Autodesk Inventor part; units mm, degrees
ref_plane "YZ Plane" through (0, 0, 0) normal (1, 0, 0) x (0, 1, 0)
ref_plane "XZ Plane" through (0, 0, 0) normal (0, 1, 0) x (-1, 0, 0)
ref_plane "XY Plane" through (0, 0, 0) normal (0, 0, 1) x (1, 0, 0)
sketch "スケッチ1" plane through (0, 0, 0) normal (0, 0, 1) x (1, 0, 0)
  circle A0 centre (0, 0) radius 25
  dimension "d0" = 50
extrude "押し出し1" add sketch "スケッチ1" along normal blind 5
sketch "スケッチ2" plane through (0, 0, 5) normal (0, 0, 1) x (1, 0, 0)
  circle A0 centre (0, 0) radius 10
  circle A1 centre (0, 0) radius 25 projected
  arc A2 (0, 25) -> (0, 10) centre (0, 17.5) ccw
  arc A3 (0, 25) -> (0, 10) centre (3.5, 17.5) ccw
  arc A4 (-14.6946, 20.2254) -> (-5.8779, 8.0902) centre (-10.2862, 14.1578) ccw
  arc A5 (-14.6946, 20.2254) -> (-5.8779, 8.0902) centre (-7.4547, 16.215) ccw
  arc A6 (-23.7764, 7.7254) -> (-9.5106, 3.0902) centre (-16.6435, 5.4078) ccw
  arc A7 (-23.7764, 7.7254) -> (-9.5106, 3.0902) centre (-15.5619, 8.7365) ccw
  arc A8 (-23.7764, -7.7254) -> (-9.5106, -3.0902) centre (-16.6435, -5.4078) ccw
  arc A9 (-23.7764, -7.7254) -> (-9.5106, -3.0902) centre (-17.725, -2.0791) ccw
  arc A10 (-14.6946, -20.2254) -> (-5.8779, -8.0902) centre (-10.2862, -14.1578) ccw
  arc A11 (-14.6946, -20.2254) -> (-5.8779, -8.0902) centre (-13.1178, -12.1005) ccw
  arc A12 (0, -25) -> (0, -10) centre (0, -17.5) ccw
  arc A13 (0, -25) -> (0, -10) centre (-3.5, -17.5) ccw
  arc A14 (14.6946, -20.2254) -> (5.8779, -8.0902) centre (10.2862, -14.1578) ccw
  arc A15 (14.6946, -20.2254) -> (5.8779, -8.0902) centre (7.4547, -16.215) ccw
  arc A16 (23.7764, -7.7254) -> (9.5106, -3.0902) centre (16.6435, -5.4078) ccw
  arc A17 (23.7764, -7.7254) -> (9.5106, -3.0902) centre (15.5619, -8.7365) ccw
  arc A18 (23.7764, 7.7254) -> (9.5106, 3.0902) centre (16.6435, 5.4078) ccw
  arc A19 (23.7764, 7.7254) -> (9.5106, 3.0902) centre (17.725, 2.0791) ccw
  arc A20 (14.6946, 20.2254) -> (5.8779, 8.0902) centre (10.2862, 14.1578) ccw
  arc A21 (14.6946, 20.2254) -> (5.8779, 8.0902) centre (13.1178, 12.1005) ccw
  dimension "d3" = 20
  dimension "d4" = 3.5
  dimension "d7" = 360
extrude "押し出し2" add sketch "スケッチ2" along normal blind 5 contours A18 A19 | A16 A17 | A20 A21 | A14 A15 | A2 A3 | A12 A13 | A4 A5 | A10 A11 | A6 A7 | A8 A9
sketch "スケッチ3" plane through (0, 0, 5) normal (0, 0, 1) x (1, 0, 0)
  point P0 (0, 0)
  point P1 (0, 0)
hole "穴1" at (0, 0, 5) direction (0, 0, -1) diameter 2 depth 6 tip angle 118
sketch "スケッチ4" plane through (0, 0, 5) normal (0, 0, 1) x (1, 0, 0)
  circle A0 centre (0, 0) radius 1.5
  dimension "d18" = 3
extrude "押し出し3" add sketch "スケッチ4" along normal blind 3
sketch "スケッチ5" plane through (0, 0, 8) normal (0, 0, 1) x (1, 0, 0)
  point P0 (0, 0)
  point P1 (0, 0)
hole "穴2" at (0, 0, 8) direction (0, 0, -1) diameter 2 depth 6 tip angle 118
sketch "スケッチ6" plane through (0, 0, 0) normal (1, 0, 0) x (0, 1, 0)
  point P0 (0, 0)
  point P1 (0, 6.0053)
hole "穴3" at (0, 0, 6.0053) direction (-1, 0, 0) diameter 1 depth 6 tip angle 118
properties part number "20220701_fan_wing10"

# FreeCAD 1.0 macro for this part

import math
import FreeCAD as App
import Part
import Sketcher
from FreeCAD import Vector
Q = App.Units.Quantity

doc = App.newDocument("Part")
body = doc.addObject("PartDesign::Body", "Body")

# Sketch on XY plane
sketch1 = body.newObject("Sketcher::SketchObject", "Sketch")
sketch1.AttachmentSupport = (doc.getObject("XY_Plane"), [""])
sketch1.MapMode = "FlatFace"
sketch1.addGeometry(Part.Circle(Vector(0, 0, 0), Vector(0, 0, 1), 25), False)
sketch1.addConstraint([
    Sketcher.Constraint("Coincident", 0, 3, -1, 1),
    Sketcher.Constraint("Diameter", 0, Q("50 mm")),
])
pad1 = body.newObject("PartDesign::Pad", "Pad")
pad1.Profile = sketch1
pad1.Length = 5

# Sketch on XY plane
sketch2 = body.newObject("Sketcher::SketchObject", "Sketch001")
sketch2.AttachmentSupport = (doc.getObject("XY_Plane"), [""])
sketch2.MapMode = "FlatFace"
sketch2.AttachmentOffset = App.Placement(Vector(0, 0, 5), App.Rotation())
sketch2.addGeometry([
    Part.ArcOfCircle(Part.Circle(Vector(17, 5, 0), Vector(0, 0, 1), 7), math.radians(18), math.radians(198)),  # 0
    Part.ArcOfCircle(Part.Circle(Vector(18, 2, 0), Vector(0, 0, 1), 8), math.radians(43), math.radians(173)),  # 1
    Part.ArcOfCircle(Part.Circle(Vector(17, -5, 0), Vector(0, 0, 1), 7), math.radians(-18), math.radians(162)),  # 2
    Part.ArcOfCircle(Part.Circle(Vector(16, -9, 0), Vector(0, 0, 1), 8), math.radians(7), math.radians(137)),  # 3
    Part.ArcOfCircle(Part.Circle(Vector(10, 14, 0), Vector(0, 0, 1), 7), math.radians(54), math.radians(234)),  # 4
    Part.ArcOfCircle(Part.Circle(Vector(13, 12, 0), Vector(0, 0, 1), 8), math.radians(79), math.radians(209)),  # 5
    Part.ArcOfCircle(Part.Circle(Vector(10, -14, 0), Vector(0, 0, 1), 7), math.radians(-54), math.radians(126)),  # 6
    Part.ArcOfCircle(Part.Circle(Vector(7, -16, 0), Vector(0, 0, 1), 8), math.radians(-29), math.radians(101)),  # 7
    Part.ArcOfCircle(Part.Circle(Vector(0, 18, 0), Vector(0, 0, 1), 8), math.radians(90), math.radians(270)),  # 8
    Part.ArcOfCircle(Part.Circle(Vector(4, 18, 0), Vector(0, 0, 1), 8), math.radians(115), math.radians(245)),  # 9
    Part.ArcOfCircle(Part.Circle(Vector(0, -18, 0), Vector(0, 0, 1), 8), math.radians(-90), math.radians(90)),  # 10
    Part.ArcOfCircle(Part.Circle(Vector(-4, -18, 0), Vector(0, 0, 1), 8), math.radians(-65), math.radians(65)),  # 11
    Part.ArcOfCircle(Part.Circle(Vector(-10, 14, 0), Vector(0, 0, 1), 7), math.radians(126), math.radians(306)),  # 12
    Part.ArcOfCircle(Part.Circle(Vector(-7, 16, 0), Vector(0, 0, 1), 8), math.radians(151), math.radians(281)),  # 13
    Part.ArcOfCircle(Part.Circle(Vector(-10, -14, 0), Vector(0, 0, 1), 7), math.radians(-126), math.radians(54)),  # 14
    Part.ArcOfCircle(Part.Circle(Vector(-13, -12, 0), Vector(0, 0, 1), 8), math.radians(-101), math.radians(29)),  # 15
    Part.ArcOfCircle(Part.Circle(Vector(-17, 5, 0), Vector(0, 0, 1), 7), math.radians(162), math.radians(342)),  # 16
    Part.ArcOfCircle(Part.Circle(Vector(-16, 9, 0), Vector(0, 0, 1), 8), math.radians(-173), math.radians(-43)),  # 17
    Part.ArcOfCircle(Part.Circle(Vector(-17, -5, 0), Vector(0, 0, 1), 7), math.radians(-162), math.radians(18)),  # 18
    Part.ArcOfCircle(Part.Circle(Vector(-18, -2, 0), Vector(0, 0, 1), 8), math.radians(-137), math.radians(-7)),  # 19
], False)
sketch2.addConstraint([
    Sketcher.Constraint("Coincident", 0, 1, 1, 1),
    Sketcher.Constraint("Coincident", 1, 2, 0, 2),
    Sketcher.Constraint("Coincident", 2, 1, 3, 1),
    Sketcher.Constraint("Coincident", 3, 2, 2, 2),
    Sketcher.Constraint("Coincident", 4, 1, 5, 1),
    Sketcher.Constraint("Coincident", 5, 2, 4, 2),
    Sketcher.Constraint("Coincident", 6, 1, 7, 1),
    Sketcher.Constraint("Coincident", 7, 2, 6, 2),
    Sketcher.Constraint("Coincident", 8, 1, 9, 1),
    Sketcher.Constraint("Coincident", 9, 2, 8, 2),
    Sketcher.Constraint("Coincident", 10, 1, 11, 1),
    Sketcher.Constraint("Coincident", 11, 2, 10, 2),
    Sketcher.Constraint("Coincident", 12, 1, 13, 1),
    Sketcher.Constraint("Coincident", 13, 2, 12, 2),
    Sketcher.Constraint("Coincident", 14, 1, 15, 1),
    Sketcher.Constraint("Coincident", 15, 2, 14, 2),
    Sketcher.Constraint("Coincident", 16, 1, 17, 1),
    Sketcher.Constraint("Coincident", 17, 2, 16, 2),
    Sketcher.Constraint("Coincident", 18, 1, 19, 1),
    Sketcher.Constraint("Coincident", 19, 2, 18, 2),
    Sketcher.Constraint("Equal", 0, 2),
    Sketcher.Constraint("Equal", 1, 3),
    Sketcher.Constraint("Equal", 2, 4),
    Sketcher.Constraint("Equal", 3, 5),
    Sketcher.Constraint("Equal", 4, 6),
    Sketcher.Constraint("Equal", 5, 7),
    Sketcher.Constraint("Equal", 6, 8),
    Sketcher.Constraint("Equal", 7, 9),
    Sketcher.Constraint("Equal", 8, 10),
    Sketcher.Constraint("Equal", 9, 11),
    Sketcher.Constraint("Equal", 10, 12),
    Sketcher.Constraint("Equal", 11, 13),
    Sketcher.Constraint("Equal", 12, 14),
    Sketcher.Constraint("Equal", 13, 15),
    Sketcher.Constraint("Equal", 14, 16),
    Sketcher.Constraint("Equal", 15, 17),
    Sketcher.Constraint("Equal", 16, 18),
    Sketcher.Constraint("Equal", 17, 19),
    Sketcher.Constraint("Symmetric", 8, 3, 10, 3, -1, 1),
    Sketcher.Constraint("Symmetric", 9, 3, 11, 3, -1, 1),
    Sketcher.Constraint("Symmetric", 6, 3, 12, 3, -1, 1),
    Sketcher.Constraint("Symmetric", 7, 3, 13, 3, -1, 1),
    Sketcher.Constraint("Symmetric", 4, 3, 14, 3, -1, 1),
    Sketcher.Constraint("Symmetric", 5, 3, 15, 3, -1, 1),
    Sketcher.Constraint("Symmetric", 2, 3, 16, 3, -1, 1),
    Sketcher.Constraint("Symmetric", 3, 3, 17, 3, -1, 1),
    Sketcher.Constraint("Symmetric", 0, 3, 18, 3, -1, 1),
    Sketcher.Constraint("Symmetric", 1, 3, 19, 3, -1, 1),
    Sketcher.Constraint("Symmetric", 4, 3, 12, 3, -2),
    Sketcher.Constraint("Symmetric", 0, 3, 16, 3, -2),
    Sketcher.Constraint("PointOnObject", 8, 3, -2),
    Sketcher.Constraint("PointOnObject", 8, 1, -2),
    Sketcher.Constraint("PointOnObject", 9, 2, -2),
    Sketcher.Constraint("Horizontal", 4, 1, 12, 1),
    Sketcher.Constraint("Horizontal", 5, 2, 13, 2),
    Sketcher.Constraint("Horizontal", 0, 1, 16, 1),
    Sketcher.Constraint("Horizontal", 1, 2, 17, 2),
    Sketcher.Constraint("DistanceX", -1, 1, 9, 3, Q("3.5 mm")),
    Sketcher.Constraint("Radius", 0, Q("7.5 mm")),
    Sketcher.Constraint("DistanceY", -1, 1, 8, 1, Q("25 mm")),
    Sketcher.Constraint("DistanceY", 1, 2, 5, 2, Q("5 mm")),
    Sketcher.Constraint("DistanceY", 0, 3, 4, 3, Q("8.75 mm")),
    Sketcher.Constraint("DistanceX", 5, 2, 5, 3, Q("7.24 mm")),
    Sketcher.Constraint("DistanceX", -1, 1, 1, 3, Q("17.725 mm")),
    Sketcher.Constraint("DistanceY", -1, 1, 1, 3, Q("2.079 mm")),
    Sketcher.Constraint("DistanceX", -1, 1, 3, 3, Q("15.562 mm")),
    Sketcher.Constraint("DistanceX", -1, 1, 7, 2, Q("5.878 mm")),
    Sketcher.Constraint("DistanceY", 2, 3, 1, 3, Q("7.487 mm")),
])
pad2 = body.newObject("PartDesign::Pad", "Pad001")
pad2.Profile = sketch2
pad2.Length = 5

# Sketch on XY plane
sketch3 = body.newObject("Sketcher::SketchObject", "Sketch002")
sketch3.AttachmentSupport = (doc.getObject("XY_Plane"), [""])
sketch3.MapMode = "FlatFace"
sketch3.AttachmentOffset = App.Placement(Vector(0, 0, 5), App.Rotation())
sketch3.addGeometry(Part.Circle(Vector(0, 0, 0), Vector(0, 0, 1), 1), False)
sketch3.addConstraint([
    Sketcher.Constraint("Coincident", 0, 3, -1, 1),
    Sketcher.Constraint("Diameter", 0, Q("2 mm")),
])
doc.recompute()
hole = body.newObject("PartDesign::Hole", "Hole")
hole.Profile = sketch3
hole.ThreadType = "None"
hole.Diameter = 2
hole.DepthType = "Dimension"
hole.Depth = 6
hole.DrillPoint = "Angled"
hole.DrillPointAngle = 118

# Sketch on XY plane
sketch4 = body.newObject("Sketcher::SketchObject", "Sketch003")
sketch4.AttachmentSupport = (doc.getObject("XY_Plane"), [""])
sketch4.MapMode = "FlatFace"
sketch4.AttachmentOffset = App.Placement(Vector(0, 0, 5), App.Rotation())
sketch4.addGeometry(Part.Circle(Vector(0, 0, 0), Vector(0, 0, 1), 1.5), False)
sketch4.addConstraint([
    Sketcher.Constraint("Coincident", 0, 3, -1, 1),
    Sketcher.Constraint("Diameter", 0, Q("3 mm")),
])
pad3 = body.newObject("PartDesign::Pad", "Pad002")
pad3.Profile = sketch4
pad3.Length = 3

# Sketch on XY plane
sketch5 = body.newObject("Sketcher::SketchObject", "Sketch004")
sketch5.AttachmentSupport = (doc.getObject("XY_Plane"), [""])
sketch5.MapMode = "FlatFace"
sketch5.AttachmentOffset = App.Placement(Vector(0, 0, 8), App.Rotation())
sketch5.addGeometry(Part.Circle(Vector(0, 0, 0), Vector(0, 0, 1), 1), False)
sketch5.addConstraint([
    Sketcher.Constraint("Coincident", 0, 3, -1, 1),
    Sketcher.Constraint("Diameter", 0, Q("2 mm")),
])
doc.recompute()
hole2 = body.newObject("PartDesign::Hole", "Hole001")
hole2.Profile = sketch5
hole2.ThreadType = "None"
hole2.Diameter = 2
hole2.DepthType = "Dimension"
hole2.Depth = 6
hole2.DrillPoint = "Angled"
hole2.DrillPointAngle = 118

# Sketch on YZ plane
sketch6 = body.newObject("Sketcher::SketchObject", "Sketch005")
sketch6.AttachmentSupport = (doc.getObject("YZ_Plane"), [""])
sketch6.MapMode = "FlatFace"
sketch6.addGeometry(Part.Circle(Vector(0, 6, 0), Vector(0, 0, 1), 0.5), False)
sketch6.addConstraint([
    Sketcher.Constraint("PointOnObject", 0, 3, -2),
    Sketcher.Constraint("Diameter", 0, Q("1 mm")),
    Sketcher.Constraint("DistanceY", -1, 1, 0, 3, Q("6.0053 mm")),
])
doc.recompute()
hole3 = body.newObject("PartDesign::Hole", "Hole002")
hole3.Profile = sketch6
hole3.ThreadType = "None"
hole3.Diameter = 1
hole3.DepthType = "Dimension"
hole3.Depth = 6
hole3.DrillPoint = "Angled"
hole3.DrillPointAngle = 118

doc.recompute()
